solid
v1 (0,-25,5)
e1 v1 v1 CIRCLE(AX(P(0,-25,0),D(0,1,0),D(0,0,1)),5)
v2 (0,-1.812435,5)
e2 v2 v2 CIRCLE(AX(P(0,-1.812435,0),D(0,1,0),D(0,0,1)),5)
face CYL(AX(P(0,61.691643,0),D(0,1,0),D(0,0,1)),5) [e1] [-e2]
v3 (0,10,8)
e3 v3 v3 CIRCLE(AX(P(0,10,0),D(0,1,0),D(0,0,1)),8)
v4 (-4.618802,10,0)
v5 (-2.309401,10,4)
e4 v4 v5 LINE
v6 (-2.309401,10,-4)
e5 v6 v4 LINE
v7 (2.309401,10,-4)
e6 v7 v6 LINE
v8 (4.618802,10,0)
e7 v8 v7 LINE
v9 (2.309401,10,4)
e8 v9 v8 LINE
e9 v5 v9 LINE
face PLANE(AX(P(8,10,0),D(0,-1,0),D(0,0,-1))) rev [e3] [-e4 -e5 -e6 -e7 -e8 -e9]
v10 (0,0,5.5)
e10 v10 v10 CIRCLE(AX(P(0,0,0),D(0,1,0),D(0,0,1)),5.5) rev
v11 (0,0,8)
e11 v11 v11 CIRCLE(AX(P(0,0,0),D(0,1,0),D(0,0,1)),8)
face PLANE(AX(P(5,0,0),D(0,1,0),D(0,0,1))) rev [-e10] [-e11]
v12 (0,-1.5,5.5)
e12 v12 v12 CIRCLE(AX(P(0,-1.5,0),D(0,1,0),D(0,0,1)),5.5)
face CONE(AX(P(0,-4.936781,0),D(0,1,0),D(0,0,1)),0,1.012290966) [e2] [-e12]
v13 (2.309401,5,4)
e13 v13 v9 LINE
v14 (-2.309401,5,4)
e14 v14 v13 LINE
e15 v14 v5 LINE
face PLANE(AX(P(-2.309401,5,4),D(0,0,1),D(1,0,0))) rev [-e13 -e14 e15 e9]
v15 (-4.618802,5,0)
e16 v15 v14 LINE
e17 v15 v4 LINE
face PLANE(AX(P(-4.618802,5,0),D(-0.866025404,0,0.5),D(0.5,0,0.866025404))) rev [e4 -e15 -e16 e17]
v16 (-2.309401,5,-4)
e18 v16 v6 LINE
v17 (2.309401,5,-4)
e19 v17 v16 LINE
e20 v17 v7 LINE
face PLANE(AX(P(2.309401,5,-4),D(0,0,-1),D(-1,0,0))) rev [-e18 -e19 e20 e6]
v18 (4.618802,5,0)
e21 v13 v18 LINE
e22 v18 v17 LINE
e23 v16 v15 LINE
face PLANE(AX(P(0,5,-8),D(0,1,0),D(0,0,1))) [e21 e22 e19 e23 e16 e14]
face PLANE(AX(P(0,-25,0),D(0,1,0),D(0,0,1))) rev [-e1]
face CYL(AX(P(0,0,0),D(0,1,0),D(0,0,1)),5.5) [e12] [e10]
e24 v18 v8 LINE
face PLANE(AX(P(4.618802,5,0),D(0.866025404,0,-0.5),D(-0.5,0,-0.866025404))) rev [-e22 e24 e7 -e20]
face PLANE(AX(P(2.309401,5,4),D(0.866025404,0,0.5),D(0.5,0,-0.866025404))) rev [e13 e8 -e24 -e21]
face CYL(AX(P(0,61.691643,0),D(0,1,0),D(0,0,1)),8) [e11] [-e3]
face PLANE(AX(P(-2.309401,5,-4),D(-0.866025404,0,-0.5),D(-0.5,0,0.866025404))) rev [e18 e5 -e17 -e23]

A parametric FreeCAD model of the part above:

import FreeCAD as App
import Part
import Sketcher

V = App.Vector
Q = App.Units.Quantity


def add_polygon(sketch, points):
    """Adds a closed chain of lines whose ends are joined by coincident constraints."""
    first, n = sketch.GeometryCount, len(points)
    for a, b in zip(points, points[1:] + points[:1]):
        sketch.addGeometry(Part.LineSegment(App.Vector(*a, 0), App.Vector(*b, 0)), False)
    for i in range(n):
        sketch.addConstraint(Sketcher.Constraint("Coincident", first + i, 2, first + (i + 1) % n, 1))

doc = App.newDocument("Part")
body = doc.addObject("PartDesign::Body", "Body")

sketch1 = doc.addObject("Sketcher::SketchObject", "Sketch")
body.addObject(sketch1)
sketch1.AttachmentSupport = (doc.XY_Plane, [""])
sketch1.MapMode = "FlatFace"
add_polygon(sketch1, [(0, -25), (5, -25), (5, 0), (8, 0), (8, 10), (0, 10)])
sketch1.addConstraint([
    Sketcher.Constraint("Horizontal", 0),
    Sketcher.Constraint("Vertical", 1),
    Sketcher.Constraint("Horizontal", 2),
    Sketcher.Constraint("Vertical", 3),
    Sketcher.Constraint("Horizontal", 4),
    Sketcher.Constraint("Vertical", 5),
    Sketcher.Constraint("PointOnObject", 1, 2, -1),
    Sketcher.Constraint("PointOnObject", 4, 2, -2),
    Sketcher.Constraint("DistanceX", 0, 1, 0, 2, Q("5 mm")),
    Sketcher.Constraint("DistanceX", 2, 1, 2, 2, Q("3 mm")),
    Sketcher.Constraint("DistanceY", 1, 1, 1, 2, Q("25 mm")),
    Sketcher.Constraint("DistanceY", 3, 1, 3, 2, Q("10 mm")),
])
revolution = doc.addObject("PartDesign::Revolution", "Revolution")
body.addObject(revolution)
revolution.Profile = sketch1
revolution.ReferenceAxis = (sketch1, ["V_Axis"])
revolution.Angle = 360

sketch2 = doc.addObject("Sketcher::SketchObject", "Sketch001")
body.addObject(sketch2)
sketch2.AttachmentSupport = (doc.XZ_Plane, [""])
sketch2.MapMode = "FlatFace"
sketch2.AttachmentOffset = App.Placement(V(0, 0, -10), App.Rotation())
add_polygon(sketch2, [(2.309401, -4), (-2.309401, -4), (-4.618802, 0), (-2.309401, 4), (2.309401, 4), (4.618802, 0)])
sketch2.addConstraint([
    Sketcher.Constraint("Horizontal", 0),
    Sketcher.Constraint("Horizontal", 3),
    Sketcher.Constraint("Symmetric", 0, 2, 3, 2, -1, 1),
    Sketcher.Constraint("Symmetric", 1, 2, 4, 2, -1, 1),
    Sketcher.Constraint("PointOnObject", 1, 2, -1),
    Sketcher.Constraint("Parallel", 2, 5),
    Sketcher.Constraint("Vertical", 0, 2, 2, 2),
    Sketcher.Constraint("Angle", 1, Q("120 deg")),
    Sketcher.Constraint("DistanceY", 0, 2, -1, 1, Q("4 mm")),
    Sketcher.Constraint("DistanceX", 0, 2, -1, 1, Q("2.309401 mm")),
])
pocket1 = doc.addObject("PartDesign::Pocket", "Pocket")
body.addObject(pocket1)
pocket1.Profile = sketch2
pocket1.Length = 5
pocket1.Reversed = True

sketch3 = doc.addObject("Sketcher::SketchObject", "Sketch002")
body.addObject(sketch3)
sketch3.AttachmentSupport = (doc.XY_Plane, [""])
sketch3.MapMode = "FlatFace"
add_polygon(sketch3, [(5.5, 0), (0, 0), (0, -4.936781), (5.5, -1.5)])
sketch3.addConstraint([
    Sketcher.Constraint("Horizontal", 0),
    Sketcher.Constraint("Vertical", 1),
    Sketcher.Constraint("Vertical", 3),
    Sketcher.Constraint("Coincident", 0, 2, -1, 1),
    Sketcher.Constraint("Angle", 2, Q("32 deg")),
    Sketcher.Constraint("DistanceX", 0, 2, 0, 1, Q("5.5 mm")),
    Sketcher.Constraint("DistanceY", 3, 1, 3, 2, Q("1.5 mm")),
])
revolution2 = doc.addObject("PartDesign::Revolution", "Revolution001")
body.addObject(revolution2)
revolution2.Profile = sketch3
revolution2.ReferenceAxis = (sketch3, ["V_Axis"])
revolution2.Angle = 360

doc.recompute()
